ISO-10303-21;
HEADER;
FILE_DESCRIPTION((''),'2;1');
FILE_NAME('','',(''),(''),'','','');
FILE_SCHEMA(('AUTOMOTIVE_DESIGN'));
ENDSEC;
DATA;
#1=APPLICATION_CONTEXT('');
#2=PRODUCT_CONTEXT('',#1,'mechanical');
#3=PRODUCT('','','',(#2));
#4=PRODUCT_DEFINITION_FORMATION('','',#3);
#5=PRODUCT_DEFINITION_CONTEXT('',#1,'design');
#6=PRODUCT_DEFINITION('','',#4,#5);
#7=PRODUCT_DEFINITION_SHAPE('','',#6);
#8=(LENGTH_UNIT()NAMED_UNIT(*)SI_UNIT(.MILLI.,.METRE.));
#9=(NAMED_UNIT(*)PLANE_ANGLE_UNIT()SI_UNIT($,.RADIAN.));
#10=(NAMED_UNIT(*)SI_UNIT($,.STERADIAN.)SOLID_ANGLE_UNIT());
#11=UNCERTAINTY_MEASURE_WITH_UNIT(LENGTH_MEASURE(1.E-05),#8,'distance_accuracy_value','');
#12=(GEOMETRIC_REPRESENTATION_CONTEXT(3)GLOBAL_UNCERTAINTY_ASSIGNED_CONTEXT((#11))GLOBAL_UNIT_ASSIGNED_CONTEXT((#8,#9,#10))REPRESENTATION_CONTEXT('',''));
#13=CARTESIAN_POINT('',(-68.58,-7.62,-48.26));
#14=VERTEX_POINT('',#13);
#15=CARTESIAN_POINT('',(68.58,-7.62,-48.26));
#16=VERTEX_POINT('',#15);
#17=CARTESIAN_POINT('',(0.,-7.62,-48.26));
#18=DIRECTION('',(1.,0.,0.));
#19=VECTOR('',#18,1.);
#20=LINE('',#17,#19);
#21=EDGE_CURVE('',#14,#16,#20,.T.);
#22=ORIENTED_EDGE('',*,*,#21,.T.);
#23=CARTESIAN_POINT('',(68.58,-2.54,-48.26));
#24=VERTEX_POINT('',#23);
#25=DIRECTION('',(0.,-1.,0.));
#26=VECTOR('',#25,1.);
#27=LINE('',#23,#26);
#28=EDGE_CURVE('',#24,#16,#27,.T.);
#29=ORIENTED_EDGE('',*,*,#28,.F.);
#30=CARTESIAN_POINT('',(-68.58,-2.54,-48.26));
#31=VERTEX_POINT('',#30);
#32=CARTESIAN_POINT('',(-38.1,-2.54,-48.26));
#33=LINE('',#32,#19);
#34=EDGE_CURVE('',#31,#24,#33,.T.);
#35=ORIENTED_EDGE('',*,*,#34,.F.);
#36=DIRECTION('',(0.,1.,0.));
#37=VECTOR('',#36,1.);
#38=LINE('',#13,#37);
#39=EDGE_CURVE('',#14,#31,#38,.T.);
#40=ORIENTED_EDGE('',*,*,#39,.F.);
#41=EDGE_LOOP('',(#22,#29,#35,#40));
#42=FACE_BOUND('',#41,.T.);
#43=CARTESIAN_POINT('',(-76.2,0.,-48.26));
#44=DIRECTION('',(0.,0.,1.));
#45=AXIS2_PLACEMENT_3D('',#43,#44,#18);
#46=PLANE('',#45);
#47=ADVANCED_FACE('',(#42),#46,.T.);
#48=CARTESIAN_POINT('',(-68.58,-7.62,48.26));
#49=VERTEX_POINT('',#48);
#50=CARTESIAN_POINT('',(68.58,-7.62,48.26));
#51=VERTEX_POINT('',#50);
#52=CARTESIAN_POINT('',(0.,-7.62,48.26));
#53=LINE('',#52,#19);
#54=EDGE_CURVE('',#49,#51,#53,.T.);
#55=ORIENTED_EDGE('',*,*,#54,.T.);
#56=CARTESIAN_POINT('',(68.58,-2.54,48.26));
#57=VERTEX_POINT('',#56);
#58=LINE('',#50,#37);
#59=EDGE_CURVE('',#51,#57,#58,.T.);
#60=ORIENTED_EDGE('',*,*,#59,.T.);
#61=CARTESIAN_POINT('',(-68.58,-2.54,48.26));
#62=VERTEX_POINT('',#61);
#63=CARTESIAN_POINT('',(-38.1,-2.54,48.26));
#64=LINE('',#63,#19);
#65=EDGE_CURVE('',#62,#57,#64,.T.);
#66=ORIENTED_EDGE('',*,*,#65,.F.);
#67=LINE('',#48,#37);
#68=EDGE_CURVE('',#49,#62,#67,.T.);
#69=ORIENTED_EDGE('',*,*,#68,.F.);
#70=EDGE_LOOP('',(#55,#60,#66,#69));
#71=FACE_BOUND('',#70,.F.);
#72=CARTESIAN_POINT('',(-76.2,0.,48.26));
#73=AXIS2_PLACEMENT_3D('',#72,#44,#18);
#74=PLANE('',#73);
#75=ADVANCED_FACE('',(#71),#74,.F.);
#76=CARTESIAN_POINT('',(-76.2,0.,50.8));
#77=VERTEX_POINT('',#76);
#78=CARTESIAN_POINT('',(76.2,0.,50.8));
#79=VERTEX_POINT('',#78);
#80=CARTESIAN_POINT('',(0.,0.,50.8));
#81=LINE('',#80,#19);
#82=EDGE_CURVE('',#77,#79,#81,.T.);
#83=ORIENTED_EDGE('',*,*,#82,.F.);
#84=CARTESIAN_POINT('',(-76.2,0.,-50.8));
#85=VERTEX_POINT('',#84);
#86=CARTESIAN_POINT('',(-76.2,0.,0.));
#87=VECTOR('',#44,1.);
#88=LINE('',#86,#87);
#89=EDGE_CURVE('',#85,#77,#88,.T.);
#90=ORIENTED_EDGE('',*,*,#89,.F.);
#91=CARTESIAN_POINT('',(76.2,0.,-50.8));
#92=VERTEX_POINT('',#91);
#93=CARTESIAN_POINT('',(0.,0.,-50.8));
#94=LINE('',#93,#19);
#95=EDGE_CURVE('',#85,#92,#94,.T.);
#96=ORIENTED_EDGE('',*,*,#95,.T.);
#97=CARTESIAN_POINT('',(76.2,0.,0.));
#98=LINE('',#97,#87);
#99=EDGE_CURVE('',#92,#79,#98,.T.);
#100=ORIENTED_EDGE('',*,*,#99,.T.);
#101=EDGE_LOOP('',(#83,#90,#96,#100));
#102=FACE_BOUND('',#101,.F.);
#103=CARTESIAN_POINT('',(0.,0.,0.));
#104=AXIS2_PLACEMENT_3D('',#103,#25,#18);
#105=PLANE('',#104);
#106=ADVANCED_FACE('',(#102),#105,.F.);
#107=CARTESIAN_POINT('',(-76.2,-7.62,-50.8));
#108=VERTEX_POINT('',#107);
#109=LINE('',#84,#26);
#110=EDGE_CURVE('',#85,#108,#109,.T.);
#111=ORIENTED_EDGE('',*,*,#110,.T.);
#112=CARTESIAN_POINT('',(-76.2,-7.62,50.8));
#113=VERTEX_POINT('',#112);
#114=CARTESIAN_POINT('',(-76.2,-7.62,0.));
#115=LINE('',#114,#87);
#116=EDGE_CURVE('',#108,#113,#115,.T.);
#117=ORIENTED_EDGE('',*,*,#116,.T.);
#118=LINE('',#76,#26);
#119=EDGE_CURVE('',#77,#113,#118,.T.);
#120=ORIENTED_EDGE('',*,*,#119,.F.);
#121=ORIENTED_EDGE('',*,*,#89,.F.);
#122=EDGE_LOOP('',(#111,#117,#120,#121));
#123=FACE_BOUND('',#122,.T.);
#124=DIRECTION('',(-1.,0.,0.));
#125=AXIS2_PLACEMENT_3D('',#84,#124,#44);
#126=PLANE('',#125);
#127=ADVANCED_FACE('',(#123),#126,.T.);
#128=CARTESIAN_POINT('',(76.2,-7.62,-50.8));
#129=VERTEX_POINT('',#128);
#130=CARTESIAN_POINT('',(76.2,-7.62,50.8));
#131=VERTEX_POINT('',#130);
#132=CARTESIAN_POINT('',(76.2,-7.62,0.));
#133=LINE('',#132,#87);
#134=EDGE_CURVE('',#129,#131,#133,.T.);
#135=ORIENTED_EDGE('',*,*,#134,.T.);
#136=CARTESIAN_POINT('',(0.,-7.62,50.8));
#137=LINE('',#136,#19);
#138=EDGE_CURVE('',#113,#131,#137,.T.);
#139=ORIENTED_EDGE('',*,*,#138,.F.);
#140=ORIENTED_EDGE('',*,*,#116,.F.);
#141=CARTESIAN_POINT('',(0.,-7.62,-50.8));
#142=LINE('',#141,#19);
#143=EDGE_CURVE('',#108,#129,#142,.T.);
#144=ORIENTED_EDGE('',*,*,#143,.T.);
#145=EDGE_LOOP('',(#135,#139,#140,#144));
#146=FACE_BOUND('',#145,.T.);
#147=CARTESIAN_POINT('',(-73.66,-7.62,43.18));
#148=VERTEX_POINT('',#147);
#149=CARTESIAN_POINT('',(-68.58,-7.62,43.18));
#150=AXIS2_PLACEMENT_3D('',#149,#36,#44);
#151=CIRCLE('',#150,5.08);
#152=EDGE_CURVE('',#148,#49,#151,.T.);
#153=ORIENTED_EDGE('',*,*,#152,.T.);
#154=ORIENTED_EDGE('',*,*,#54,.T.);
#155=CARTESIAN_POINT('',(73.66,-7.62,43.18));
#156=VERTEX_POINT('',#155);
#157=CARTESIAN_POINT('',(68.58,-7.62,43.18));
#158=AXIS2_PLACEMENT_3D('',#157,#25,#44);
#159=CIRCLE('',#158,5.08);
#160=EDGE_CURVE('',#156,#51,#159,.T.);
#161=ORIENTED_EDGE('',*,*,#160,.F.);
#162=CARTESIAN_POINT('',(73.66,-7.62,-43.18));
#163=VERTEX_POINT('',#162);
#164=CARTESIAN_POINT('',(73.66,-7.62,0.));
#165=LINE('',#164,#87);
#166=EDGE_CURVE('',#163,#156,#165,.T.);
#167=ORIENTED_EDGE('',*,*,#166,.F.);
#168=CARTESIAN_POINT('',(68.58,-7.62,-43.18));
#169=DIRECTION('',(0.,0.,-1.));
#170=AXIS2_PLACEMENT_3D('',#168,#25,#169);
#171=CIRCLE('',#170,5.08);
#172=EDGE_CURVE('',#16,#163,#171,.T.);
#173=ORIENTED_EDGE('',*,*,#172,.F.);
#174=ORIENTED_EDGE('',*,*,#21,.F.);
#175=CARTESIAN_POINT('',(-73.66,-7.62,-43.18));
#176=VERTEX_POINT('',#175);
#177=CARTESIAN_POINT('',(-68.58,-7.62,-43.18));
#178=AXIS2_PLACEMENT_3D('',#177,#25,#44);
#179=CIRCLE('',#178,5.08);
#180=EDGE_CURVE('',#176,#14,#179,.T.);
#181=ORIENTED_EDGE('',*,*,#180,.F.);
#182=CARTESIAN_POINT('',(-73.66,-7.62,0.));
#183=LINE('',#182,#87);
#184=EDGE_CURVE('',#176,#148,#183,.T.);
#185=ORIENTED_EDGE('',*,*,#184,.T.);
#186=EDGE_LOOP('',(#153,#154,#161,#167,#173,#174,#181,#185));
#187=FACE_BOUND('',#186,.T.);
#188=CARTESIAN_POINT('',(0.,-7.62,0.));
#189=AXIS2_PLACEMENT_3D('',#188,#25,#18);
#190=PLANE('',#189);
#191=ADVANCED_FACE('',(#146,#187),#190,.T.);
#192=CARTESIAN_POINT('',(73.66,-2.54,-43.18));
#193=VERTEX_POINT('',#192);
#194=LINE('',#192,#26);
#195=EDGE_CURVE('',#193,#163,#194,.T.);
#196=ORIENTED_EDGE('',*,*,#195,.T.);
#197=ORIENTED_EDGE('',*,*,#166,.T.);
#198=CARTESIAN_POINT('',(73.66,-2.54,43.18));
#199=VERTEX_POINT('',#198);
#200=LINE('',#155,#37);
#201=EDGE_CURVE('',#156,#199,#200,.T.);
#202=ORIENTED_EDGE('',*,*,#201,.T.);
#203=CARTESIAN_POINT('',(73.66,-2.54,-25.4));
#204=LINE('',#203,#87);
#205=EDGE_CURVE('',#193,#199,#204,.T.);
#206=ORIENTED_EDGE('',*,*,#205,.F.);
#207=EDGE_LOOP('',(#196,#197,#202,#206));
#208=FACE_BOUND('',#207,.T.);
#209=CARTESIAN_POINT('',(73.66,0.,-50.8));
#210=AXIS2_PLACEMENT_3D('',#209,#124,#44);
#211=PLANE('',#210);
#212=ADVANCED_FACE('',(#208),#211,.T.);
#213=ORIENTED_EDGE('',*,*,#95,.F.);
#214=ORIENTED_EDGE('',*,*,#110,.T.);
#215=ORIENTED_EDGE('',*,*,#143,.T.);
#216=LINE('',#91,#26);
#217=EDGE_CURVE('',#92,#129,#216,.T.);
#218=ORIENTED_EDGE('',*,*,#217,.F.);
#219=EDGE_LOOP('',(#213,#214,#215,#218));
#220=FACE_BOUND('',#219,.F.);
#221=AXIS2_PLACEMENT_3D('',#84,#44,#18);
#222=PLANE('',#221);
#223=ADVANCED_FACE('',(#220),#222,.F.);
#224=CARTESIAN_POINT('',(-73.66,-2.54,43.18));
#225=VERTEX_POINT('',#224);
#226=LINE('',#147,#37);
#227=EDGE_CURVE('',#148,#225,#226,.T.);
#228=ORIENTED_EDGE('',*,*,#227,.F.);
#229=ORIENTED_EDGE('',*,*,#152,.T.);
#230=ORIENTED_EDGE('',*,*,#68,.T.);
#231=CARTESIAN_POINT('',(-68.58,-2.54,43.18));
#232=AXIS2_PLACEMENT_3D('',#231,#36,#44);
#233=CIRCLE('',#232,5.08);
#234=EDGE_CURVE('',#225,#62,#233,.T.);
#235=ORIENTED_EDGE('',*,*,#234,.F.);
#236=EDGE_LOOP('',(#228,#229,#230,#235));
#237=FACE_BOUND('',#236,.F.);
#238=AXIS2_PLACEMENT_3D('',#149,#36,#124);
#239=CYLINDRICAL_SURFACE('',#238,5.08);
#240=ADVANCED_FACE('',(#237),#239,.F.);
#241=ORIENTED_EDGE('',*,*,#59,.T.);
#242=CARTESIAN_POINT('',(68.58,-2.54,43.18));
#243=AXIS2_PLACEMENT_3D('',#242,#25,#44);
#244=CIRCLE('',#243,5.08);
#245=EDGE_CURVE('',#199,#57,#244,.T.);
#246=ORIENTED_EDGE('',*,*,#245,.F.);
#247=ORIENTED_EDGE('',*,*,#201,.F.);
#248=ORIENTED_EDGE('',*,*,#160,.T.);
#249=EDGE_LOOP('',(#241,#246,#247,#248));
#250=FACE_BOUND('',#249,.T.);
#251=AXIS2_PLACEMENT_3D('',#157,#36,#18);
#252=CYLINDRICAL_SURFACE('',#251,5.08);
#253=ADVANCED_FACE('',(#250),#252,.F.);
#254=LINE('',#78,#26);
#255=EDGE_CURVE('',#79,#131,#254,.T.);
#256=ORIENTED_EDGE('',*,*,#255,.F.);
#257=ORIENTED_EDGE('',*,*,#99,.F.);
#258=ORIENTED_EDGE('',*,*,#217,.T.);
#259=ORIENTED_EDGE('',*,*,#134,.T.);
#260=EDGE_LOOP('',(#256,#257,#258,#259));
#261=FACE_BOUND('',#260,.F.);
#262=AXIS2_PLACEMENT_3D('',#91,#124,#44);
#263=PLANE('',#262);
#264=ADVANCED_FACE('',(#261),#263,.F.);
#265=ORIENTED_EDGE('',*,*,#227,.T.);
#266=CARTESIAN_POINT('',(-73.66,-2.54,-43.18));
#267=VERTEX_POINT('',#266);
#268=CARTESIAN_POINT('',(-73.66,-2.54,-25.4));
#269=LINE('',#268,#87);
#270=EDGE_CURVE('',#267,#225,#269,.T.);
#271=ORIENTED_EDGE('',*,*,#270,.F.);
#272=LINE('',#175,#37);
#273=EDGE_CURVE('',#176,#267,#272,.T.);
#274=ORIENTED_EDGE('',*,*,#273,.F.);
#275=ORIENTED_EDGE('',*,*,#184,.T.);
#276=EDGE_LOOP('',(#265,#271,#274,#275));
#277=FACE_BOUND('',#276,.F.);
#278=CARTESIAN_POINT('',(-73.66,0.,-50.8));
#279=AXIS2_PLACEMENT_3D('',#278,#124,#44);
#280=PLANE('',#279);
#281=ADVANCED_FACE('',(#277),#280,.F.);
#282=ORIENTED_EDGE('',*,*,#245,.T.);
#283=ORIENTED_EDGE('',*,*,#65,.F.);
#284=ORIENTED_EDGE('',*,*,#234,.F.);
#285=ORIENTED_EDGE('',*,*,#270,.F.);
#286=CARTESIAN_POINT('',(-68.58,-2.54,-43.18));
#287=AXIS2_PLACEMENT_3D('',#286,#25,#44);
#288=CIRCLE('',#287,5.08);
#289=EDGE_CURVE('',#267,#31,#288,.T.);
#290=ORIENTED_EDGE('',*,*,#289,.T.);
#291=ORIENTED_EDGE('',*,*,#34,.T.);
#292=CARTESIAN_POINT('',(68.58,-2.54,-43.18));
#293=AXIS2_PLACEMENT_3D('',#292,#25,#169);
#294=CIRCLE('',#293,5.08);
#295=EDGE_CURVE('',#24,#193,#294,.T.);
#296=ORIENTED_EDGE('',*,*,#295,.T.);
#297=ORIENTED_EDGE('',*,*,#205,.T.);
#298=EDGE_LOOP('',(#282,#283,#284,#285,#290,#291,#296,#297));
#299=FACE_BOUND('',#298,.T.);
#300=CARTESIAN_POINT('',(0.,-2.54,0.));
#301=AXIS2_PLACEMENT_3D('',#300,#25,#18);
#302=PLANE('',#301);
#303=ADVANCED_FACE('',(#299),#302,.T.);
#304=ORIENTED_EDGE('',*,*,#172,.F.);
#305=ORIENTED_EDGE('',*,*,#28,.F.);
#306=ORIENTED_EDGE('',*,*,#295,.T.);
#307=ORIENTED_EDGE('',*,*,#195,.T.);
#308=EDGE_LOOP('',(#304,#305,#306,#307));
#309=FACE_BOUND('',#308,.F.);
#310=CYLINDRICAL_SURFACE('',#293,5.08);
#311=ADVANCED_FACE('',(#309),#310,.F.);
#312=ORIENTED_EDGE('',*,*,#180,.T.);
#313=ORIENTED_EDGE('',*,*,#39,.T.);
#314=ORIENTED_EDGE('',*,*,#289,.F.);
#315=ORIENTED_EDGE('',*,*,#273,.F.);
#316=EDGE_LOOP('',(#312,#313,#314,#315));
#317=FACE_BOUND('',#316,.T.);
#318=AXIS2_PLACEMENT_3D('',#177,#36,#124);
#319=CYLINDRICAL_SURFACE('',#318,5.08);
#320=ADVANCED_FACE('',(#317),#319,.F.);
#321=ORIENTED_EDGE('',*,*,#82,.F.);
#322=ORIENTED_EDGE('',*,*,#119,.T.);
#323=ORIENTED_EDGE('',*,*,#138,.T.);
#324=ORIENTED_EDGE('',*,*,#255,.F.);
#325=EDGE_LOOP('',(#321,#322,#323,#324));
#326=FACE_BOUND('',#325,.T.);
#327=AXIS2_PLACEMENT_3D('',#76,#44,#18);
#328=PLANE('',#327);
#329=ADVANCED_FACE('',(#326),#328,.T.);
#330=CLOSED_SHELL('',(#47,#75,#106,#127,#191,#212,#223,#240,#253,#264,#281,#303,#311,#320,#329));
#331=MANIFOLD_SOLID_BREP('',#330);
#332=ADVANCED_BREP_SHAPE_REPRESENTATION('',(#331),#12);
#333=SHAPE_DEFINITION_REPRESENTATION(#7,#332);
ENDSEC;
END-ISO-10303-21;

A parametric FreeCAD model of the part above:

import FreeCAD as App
import Part
import Sketcher
from FreeCAD import Vector
Q = App.Units.Quantity


def edges_at(feature, points):
    """Names of the edges that pass closest to the given points."""
    edges = feature.Shape.Edges
    near = lambda p: min(range(len(edges)), key=lambda i: edges[i].distToShape(Part.Vertex(*p))[0])
    return sorted({f"Edge{near(p) + 1}" for p in points})


def faces_at(feature, points):
    """Names of the faces that lie closest to the given points."""
    faces = feature.Shape.Faces
    near = lambda p: min(range(len(faces)), key=lambda i: faces[i].distToShape(Part.Vertex(*p))[0])
    return sorted({f"Face{near(p) + 1}" for p in points})


def add_polygon(sketch, points):
    """Adds a closed chain of lines whose ends are joined by coincident constraints."""
    first, n = sketch.GeometryCount, len(points)
    for a, b in zip(points, points[1:] + points[:1]):
        sketch.addGeometry(Part.LineSegment(App.Vector(*a, 0), App.Vector(*b, 0)), False)
    for i in range(n):
        sketch.addConstraint(Sketcher.Constraint("Coincident", first + i, 2, first + (i + 1) % n, 1))

doc = App.newDocument("Part")
params = doc.addObject("Spreadsheet::Sheet", "Params")
for row, (alias, value) in enumerate([
    ("sketch1_width", "6 in"),
    ("sketch1_height", "4 in"),
    ("pad1_length", "0.3 in"),
    ("thickness_wall", "0.1 in"),
    ("fillet_radius", "0.2 in"),
], start=1):
    params.set(f"A{row}", alias)
    params.set(f"B{row}", "=" + value)
    params.setAlias(f"B{row}", alias)

body = doc.addObject("PartDesign::Body", "Body")

sketch1 = doc.addObject("Sketcher::SketchObject", "Sketch")
body.addObject(sketch1)
sketch1.AttachmentSupport = (doc.XZ_Plane, [""])
sketch1.MapMode = "FlatFace"
add_polygon(sketch1, [(-76, 51), (-76, -51), (76, -51), (76, 51)])
sketch1.addConstraint([
    Sketcher.Constraint("Vertical", 0),
    Sketcher.Constraint("Horizontal", 1),
    Sketcher.Constraint("Vertical", 2),
    Sketcher.Constraint("Horizontal", 3),
    Sketcher.Constraint("Symmetric", 0, 2, 2, 2, -1, 1),
    Sketcher.Constraint("DistanceX", 1, 1, 1, 2, Q("6 in")),
    Sketcher.Constraint("DistanceY", 0, 2, 0, 1, Q("4 in")),
])
sketch1.setExpression("Constraints[9]", "Params.sketch1_width")
sketch1.setExpression("Constraints[10]", "Params.sketch1_height")
pad1 = doc.addObject("PartDesign::Pad", "Pad")
body.addObject(pad1)
pad1.Profile = sketch1
pad1.setExpression("Length", "Params.pad1_length")
doc.recompute()

thickness = doc.addObject("PartDesign::Thickness", "Thickness")
body.addObject(thickness)
thickness.Base = (pad1, faces_at(pad1, [(0, -7.62, 0)]))
thickness.setExpression("Value", "Params.thickness_wall")
thickness.Reversed = True
thickness.Join = "Arc"
doc.recompute()

fillet = doc.addObject("PartDesign::Fillet", "Fillet")
body.addObject(fillet)
fillet.Base = (thickness, edges_at(thickness, [
    (-73.66, -5.08, 48.26),
    (-73.66, -5.08, -48.26),
    (73.66, -5.08, 48.26),
    (73.66, -5.08, -48.26),
]))
fillet.setExpression("Radius", "Params.fillet_radius")

doc.recompute()
